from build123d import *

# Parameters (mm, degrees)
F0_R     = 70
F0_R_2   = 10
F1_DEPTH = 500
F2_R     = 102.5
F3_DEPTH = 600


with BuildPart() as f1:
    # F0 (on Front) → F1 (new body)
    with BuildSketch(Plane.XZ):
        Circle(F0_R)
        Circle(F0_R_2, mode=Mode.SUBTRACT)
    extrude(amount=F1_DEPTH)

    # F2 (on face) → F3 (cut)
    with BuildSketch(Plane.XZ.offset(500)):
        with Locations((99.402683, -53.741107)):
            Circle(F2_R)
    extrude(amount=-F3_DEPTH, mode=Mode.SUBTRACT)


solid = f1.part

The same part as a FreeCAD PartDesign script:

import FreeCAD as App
import Part
import Sketcher
from FreeCAD import Vector
Q = App.Units.Quantity

doc = App.newDocument("Part")
params = doc.addObject("Spreadsheet::Sheet", "Params")
for row, (alias, value) in enumerate([
    ("sketch1_diameter", "140 mm"),
    ("sketch1_diameter2", "20 mm"),
    ("pad1_length", "500 mm"),
    ("sketch2_diameter", "205 mm"),
    ("pocket1_length", "600 mm"),
], start=1):
    params.set(f"A{row}", alias)
    params.set(f"B{row}", "=" + value)
    params.setAlias(f"B{row}", alias)

body = doc.addObject("PartDesign::Body", "Body")

sketch1 = body.newObject("Sketcher::SketchObject", "Sketch")
sketch1.AttachmentSupport = (doc.getObject("XZ_Plane"), [""])
sketch1.MapMode = "FlatFace"
sketch1.addGeometry(Part.Circle(Vector(0, 0, 0), Vector(0, 0, 1), 70), False)
sketch1.addGeometry(Part.Circle(Vector(0, 0, 0), Vector(0, 0, 1), 10), False)
sketch1.addConstraint(Sketcher.Constraint("Coincident", 0, 3, -1, 1))
sketch1.addConstraint(Sketcher.Constraint("Coincident", 1, 3, -1, 1))
sketch1.addConstraint(Sketcher.Constraint("Diameter", 0, Q("140 mm")))
sketch1.addConstraint(Sketcher.Constraint("Diameter", 1, Q("20 mm")))
sketch1.setExpression("Constraints[2]", "Params.sketch1_diameter")
sketch1.setExpression("Constraints[3]", "Params.sketch1_diameter2")
pad1 = body.newObject("PartDesign::Pad", "Pad")
pad1.Profile = sketch1
pad1.setExpression("Length", "Params.pad1_length")

sketch2 = body.newObject("Sketcher::SketchObject", "Sketch001")
sketch2.AttachmentSupport = (doc.getObject("XZ_Plane"), [""])
sketch2.MapMode = "FlatFace"
sketch2.AttachmentOffset = App.Placement(Vector(0, 0, 500), App.Rotation())
sketch2.addGeometry(Part.Circle(Vector(99.402683, -53.741107, 0), Vector(0, 0, 1), 102.5), False)
sketch2.addConstraint(Sketcher.Constraint("Diameter", 0, Q("205 mm")))
sketch2.addConstraint(Sketcher.Constraint("DistanceX", -1, 1, 0, 3, Q("99.402683 mm")))
sketch2.addConstraint(Sketcher.Constraint("DistanceY", 0, 3, -1, 1, Q("53.741107 mm")))
sketch2.setExpression("Constraints[0]", "Params.sketch2_diameter")
pocket1 = body.newObject("PartDesign::Pocket", "Pocket")
pocket1.Profile = sketch2
pocket1.setExpression("Length", "Params.pocket1_length")

doc.recompute()
